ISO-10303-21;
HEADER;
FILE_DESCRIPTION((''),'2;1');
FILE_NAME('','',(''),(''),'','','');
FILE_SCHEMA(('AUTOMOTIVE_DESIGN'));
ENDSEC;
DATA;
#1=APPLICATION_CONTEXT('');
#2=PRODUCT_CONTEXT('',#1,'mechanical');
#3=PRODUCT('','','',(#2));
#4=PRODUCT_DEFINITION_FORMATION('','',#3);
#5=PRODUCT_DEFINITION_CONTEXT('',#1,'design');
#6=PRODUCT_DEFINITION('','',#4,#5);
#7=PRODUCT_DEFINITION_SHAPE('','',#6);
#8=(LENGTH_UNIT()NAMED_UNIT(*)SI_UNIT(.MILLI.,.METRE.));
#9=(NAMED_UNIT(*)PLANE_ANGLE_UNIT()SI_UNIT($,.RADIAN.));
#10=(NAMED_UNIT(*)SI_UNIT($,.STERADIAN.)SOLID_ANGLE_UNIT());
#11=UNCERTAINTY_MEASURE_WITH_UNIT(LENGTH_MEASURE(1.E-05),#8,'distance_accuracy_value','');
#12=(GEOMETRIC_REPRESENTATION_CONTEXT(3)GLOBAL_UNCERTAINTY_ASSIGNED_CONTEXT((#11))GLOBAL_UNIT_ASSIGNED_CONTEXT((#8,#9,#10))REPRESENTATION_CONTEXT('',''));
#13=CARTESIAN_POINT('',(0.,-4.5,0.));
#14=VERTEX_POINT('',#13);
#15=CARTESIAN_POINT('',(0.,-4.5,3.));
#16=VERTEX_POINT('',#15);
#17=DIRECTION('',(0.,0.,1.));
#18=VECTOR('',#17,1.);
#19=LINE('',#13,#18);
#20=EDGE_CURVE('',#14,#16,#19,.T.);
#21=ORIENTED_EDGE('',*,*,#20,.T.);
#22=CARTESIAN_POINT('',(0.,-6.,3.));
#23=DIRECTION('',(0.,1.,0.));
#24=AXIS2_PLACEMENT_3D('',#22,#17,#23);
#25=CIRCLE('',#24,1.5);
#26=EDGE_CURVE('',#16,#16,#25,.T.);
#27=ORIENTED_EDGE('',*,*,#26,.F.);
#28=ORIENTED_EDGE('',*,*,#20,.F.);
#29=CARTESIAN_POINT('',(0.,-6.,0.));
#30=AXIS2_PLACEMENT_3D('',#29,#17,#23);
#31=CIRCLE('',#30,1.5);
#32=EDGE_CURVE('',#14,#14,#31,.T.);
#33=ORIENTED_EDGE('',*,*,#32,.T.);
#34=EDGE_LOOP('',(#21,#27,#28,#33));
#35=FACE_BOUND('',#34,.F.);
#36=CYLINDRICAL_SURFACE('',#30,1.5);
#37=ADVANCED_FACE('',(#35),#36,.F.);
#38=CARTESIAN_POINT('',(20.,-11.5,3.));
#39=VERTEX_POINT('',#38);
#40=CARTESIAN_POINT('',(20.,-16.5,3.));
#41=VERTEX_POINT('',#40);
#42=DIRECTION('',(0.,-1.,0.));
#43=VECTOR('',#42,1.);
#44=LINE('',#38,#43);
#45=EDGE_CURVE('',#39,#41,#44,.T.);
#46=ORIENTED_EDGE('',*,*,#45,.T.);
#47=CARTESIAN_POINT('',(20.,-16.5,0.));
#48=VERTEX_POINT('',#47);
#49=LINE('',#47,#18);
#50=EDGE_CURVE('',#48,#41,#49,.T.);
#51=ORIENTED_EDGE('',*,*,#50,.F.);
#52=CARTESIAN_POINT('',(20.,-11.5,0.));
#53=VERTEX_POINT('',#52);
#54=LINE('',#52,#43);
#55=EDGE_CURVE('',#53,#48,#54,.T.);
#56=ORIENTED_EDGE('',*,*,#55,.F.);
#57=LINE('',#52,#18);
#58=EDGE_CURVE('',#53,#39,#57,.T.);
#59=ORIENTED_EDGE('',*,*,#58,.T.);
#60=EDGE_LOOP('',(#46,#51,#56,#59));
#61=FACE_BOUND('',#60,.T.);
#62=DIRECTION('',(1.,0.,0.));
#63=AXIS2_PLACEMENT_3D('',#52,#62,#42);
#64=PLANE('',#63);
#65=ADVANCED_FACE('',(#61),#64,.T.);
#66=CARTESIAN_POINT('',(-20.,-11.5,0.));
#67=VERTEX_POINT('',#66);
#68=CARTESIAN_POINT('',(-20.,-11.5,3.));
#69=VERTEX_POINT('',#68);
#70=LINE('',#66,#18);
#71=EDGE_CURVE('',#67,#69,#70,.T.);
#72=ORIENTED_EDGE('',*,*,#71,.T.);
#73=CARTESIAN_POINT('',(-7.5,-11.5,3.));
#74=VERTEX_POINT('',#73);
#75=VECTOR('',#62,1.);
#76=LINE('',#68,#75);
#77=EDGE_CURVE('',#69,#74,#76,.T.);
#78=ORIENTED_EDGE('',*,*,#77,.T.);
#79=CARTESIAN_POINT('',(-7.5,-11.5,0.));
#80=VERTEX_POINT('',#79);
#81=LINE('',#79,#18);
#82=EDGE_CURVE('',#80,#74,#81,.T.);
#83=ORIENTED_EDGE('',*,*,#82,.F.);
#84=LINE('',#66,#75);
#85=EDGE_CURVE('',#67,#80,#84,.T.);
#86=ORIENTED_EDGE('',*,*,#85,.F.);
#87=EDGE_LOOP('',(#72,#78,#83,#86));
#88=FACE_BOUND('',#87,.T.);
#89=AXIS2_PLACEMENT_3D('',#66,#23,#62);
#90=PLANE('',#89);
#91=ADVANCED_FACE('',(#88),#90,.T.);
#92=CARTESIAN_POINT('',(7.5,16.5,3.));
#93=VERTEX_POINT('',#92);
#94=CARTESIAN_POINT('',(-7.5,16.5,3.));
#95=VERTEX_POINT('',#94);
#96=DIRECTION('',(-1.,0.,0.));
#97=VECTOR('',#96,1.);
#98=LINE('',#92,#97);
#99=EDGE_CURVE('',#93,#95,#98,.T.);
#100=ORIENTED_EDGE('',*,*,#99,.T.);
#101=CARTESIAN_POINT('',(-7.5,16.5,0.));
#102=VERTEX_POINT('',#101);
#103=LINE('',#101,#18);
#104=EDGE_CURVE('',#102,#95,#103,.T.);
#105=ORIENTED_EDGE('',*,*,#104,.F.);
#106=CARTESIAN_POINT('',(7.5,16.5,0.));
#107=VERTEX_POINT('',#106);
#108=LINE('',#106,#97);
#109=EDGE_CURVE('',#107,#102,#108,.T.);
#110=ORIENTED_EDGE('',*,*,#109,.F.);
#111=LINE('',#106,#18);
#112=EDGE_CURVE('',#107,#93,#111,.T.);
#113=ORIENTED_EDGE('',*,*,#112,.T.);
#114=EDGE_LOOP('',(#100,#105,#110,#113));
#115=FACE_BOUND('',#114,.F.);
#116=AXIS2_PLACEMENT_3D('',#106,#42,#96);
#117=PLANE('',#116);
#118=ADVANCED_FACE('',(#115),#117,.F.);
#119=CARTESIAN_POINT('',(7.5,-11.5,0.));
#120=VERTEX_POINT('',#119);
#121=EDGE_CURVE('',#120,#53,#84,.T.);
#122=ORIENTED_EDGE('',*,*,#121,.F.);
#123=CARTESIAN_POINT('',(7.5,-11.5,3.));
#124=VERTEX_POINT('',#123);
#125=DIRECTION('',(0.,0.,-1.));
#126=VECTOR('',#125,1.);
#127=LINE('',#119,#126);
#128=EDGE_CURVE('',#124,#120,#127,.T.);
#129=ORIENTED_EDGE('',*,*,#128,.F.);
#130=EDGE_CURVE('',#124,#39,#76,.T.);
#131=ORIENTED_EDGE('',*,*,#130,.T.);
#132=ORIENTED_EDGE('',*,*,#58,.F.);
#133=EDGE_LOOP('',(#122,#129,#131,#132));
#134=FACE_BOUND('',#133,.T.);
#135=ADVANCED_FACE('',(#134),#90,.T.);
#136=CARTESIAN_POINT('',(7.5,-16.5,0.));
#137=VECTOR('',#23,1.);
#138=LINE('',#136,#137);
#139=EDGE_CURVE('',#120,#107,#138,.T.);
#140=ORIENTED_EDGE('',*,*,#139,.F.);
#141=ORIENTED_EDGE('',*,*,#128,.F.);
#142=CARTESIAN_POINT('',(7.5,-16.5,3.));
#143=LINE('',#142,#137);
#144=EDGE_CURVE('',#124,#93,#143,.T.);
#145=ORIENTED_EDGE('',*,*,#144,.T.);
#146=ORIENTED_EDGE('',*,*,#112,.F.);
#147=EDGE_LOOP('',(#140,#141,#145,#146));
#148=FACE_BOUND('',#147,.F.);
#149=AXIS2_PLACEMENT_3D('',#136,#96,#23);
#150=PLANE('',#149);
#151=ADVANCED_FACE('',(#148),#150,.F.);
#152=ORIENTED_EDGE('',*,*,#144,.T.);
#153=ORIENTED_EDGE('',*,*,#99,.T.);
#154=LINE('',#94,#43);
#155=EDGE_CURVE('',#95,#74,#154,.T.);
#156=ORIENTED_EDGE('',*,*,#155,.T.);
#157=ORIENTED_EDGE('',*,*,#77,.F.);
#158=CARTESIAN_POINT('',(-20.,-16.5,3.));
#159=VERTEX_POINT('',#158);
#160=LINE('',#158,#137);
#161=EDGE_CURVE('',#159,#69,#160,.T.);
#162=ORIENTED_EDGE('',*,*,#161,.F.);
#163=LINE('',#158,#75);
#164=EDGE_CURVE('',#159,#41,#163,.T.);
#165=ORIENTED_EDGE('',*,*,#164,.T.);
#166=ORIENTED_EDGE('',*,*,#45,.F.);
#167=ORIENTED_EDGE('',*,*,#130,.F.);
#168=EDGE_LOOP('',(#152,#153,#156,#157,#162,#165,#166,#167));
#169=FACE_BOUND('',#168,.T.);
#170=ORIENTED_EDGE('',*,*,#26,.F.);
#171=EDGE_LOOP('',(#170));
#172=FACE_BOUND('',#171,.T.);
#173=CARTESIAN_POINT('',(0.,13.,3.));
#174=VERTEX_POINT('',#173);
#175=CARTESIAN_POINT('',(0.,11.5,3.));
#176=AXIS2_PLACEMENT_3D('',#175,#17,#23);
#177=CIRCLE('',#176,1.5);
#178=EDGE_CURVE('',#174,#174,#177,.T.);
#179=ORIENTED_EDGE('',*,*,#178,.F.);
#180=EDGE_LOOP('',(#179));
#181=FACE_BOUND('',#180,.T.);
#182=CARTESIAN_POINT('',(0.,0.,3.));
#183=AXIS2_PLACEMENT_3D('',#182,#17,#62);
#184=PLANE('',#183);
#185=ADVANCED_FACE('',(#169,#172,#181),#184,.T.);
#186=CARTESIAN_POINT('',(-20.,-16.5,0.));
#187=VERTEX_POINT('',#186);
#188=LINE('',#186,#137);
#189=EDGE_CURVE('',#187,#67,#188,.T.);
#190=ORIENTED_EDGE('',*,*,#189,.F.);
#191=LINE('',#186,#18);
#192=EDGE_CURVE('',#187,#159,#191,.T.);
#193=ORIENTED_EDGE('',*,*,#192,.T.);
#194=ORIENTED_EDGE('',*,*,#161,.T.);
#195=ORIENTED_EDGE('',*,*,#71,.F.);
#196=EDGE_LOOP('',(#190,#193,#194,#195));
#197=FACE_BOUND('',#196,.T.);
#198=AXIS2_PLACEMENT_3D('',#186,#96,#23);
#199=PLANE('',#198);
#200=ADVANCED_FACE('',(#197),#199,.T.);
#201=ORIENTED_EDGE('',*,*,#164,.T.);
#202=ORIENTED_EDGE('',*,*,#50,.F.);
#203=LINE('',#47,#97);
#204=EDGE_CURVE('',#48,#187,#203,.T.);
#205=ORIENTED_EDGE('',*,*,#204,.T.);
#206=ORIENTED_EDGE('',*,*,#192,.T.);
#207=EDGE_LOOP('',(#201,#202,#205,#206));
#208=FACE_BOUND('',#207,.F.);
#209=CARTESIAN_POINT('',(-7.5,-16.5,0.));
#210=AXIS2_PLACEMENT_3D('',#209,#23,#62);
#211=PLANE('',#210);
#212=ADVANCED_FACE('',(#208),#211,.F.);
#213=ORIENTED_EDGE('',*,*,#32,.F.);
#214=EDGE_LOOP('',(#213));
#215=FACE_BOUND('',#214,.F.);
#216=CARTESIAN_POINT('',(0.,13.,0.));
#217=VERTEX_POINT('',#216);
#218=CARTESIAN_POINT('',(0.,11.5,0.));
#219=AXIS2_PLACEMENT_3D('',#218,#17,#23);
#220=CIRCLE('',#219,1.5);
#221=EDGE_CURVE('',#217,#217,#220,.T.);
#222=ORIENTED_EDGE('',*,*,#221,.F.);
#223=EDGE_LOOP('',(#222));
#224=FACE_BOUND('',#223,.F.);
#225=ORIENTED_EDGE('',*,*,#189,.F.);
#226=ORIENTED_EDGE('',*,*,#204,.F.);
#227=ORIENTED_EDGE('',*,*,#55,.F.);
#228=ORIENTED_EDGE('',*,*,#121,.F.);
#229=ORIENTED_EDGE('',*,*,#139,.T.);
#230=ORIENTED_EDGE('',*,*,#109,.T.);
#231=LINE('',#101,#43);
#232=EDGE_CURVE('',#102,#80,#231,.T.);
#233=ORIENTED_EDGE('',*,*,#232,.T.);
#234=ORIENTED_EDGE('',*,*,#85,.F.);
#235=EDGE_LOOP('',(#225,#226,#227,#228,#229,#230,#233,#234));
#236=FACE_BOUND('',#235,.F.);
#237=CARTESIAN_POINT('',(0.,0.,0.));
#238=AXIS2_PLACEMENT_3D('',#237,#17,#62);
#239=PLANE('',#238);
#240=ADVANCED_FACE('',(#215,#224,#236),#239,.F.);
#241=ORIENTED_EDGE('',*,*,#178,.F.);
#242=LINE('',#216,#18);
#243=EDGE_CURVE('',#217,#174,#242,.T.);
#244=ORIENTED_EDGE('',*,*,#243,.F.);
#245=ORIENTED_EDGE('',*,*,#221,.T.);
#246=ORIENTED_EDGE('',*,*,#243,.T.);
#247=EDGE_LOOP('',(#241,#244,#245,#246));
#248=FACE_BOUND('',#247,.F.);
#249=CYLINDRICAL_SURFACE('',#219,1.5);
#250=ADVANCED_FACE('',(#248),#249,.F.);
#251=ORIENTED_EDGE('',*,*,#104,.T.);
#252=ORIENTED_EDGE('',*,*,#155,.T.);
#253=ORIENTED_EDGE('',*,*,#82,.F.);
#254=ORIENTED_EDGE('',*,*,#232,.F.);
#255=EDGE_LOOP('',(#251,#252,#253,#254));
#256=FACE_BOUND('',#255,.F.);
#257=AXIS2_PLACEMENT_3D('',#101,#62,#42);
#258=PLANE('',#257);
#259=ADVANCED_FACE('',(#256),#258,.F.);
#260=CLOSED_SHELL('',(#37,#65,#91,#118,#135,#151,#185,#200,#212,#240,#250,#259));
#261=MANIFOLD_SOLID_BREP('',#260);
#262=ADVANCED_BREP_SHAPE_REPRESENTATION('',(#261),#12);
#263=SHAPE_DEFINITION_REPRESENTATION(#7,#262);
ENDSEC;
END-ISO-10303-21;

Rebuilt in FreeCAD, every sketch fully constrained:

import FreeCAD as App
import Part
import Sketcher

V = App.Vector
Q = App.Units.Quantity


def add_polygon(sketch, points):
    """Adds a closed chain of lines whose ends are joined by coincident constraints."""
    first, n = sketch.GeometryCount, len(points)
    for a, b in zip(points, points[1:] + points[:1]):
        sketch.addGeometry(Part.LineSegment(App.Vector(*a, 0), App.Vector(*b, 0)), False)
    for i in range(n):
        sketch.addConstraint(Sketcher.Constraint("Coincident", first + i, 2, first + (i + 1) % n, 1))

doc = App.newDocument("Part")
body = doc.addObject("PartDesign::Body", "Body")

# Sketch on XY plane
sketch1 = doc.addObject("Sketcher::SketchObject", "Sketch")
body.addObject(sketch1)
sketch1.AttachmentSupport = (doc.XY_Plane, [""])
sketch1.MapMode = "FlatFace"
add_polygon(sketch1, [(-8, 16), (-8, -16), (8, -16), (8, 16)])  # lines 0-3
sketch1.addConstraint([
    Sketcher.Constraint("Vertical", 0),
    Sketcher.Constraint("Horizontal", 1),
    Sketcher.Constraint("Vertical", 2),
    Sketcher.Constraint("Horizontal", 3),
    Sketcher.Constraint("Symmetric", 0, 2, 2, 2, -1, 1),
    Sketcher.Constraint("DistanceX", 1, 1, 1, 2, Q("15 mm")),
    Sketcher.Constraint("DistanceY", 0, 2, 0, 1, Q("33 mm")),
])
pad1 = doc.addObject("PartDesign::Pad", "Pad")
body.addObject(pad1)
pad1.Profile = sketch1
pad1.Length = 3

# Sketch on XY plane
sketch2 = doc.addObject("Sketcher::SketchObject", "Sketch001")
body.addObject(sketch2)
sketch2.AttachmentSupport = (doc.XY_Plane, [""])
sketch2.MapMode = "FlatFace"
add_polygon(sketch2, [(20, -12), (20, -16), (-20, -16), (-20, -12)])  # lines 0-3
sketch2.addConstraint([
    Sketcher.Constraint("Vertical", 0),
    Sketcher.Constraint("Horizontal", 1),
    Sketcher.Constraint("Vertical", 2),
    Sketcher.Constraint("Horizontal", 3),
    Sketcher.Constraint("DistanceY", 0, 2, 0, 1, Q("5 mm")),
    Sketcher.Constraint("DistanceX", -1, 1, 0, 2, Q("20 mm")),
    Sketcher.Constraint("DistanceX", 1, 2, -1, 1, Q("20 mm")),
    Sketcher.Constraint("DistanceY", 0, 2, -1, 1, Q("16.5 mm")),
])
pad2 = doc.addObject("PartDesign::Pad", "Pad001")
body.addObject(pad2)
pad2.Profile = sketch2
pad2.Length = 3

# Sketch on XY plane
sketch3 = doc.addObject("Sketcher::SketchObject", "Sketch002")
body.addObject(sketch3)
sketch3.AttachmentSupport = (doc.XY_Plane, [""])
sketch3.MapMode = "FlatFace"
sketch3.addGeometry([
    Part.Circle(V(0, -6, 0), V(0, 0, 1), 1.5),
    Part.Circle(V(0, 11.5, 0), V(0, 0, 1), 1.5),
], False)
sketch3.addConstraint([
    Sketcher.Constraint("Equal", 0, 1),
    Sketcher.Constraint("PointOnObject", 0, 3, -2),
    Sketcher.Constraint("PointOnObject", 1, 3, -2),
    Sketcher.Constraint("Diameter", 0, Q("3 mm")),
    Sketcher.Constraint("DistanceY", 0, 3, -1, 1, Q("6 mm")),
    Sketcher.Constraint("DistanceY", -1, 1, 1, 3, Q("11.5 mm")),
])
doc.recompute()
hole = doc.addObject("PartDesign::Hole", "Hole")
body.addObject(hole)
hole.Profile = sketch3
hole.ThreadType = "None"
hole.Diameter = 3
hole.DepthType = "ThroughAll"
hole.Reversed = True

doc.recompute()
